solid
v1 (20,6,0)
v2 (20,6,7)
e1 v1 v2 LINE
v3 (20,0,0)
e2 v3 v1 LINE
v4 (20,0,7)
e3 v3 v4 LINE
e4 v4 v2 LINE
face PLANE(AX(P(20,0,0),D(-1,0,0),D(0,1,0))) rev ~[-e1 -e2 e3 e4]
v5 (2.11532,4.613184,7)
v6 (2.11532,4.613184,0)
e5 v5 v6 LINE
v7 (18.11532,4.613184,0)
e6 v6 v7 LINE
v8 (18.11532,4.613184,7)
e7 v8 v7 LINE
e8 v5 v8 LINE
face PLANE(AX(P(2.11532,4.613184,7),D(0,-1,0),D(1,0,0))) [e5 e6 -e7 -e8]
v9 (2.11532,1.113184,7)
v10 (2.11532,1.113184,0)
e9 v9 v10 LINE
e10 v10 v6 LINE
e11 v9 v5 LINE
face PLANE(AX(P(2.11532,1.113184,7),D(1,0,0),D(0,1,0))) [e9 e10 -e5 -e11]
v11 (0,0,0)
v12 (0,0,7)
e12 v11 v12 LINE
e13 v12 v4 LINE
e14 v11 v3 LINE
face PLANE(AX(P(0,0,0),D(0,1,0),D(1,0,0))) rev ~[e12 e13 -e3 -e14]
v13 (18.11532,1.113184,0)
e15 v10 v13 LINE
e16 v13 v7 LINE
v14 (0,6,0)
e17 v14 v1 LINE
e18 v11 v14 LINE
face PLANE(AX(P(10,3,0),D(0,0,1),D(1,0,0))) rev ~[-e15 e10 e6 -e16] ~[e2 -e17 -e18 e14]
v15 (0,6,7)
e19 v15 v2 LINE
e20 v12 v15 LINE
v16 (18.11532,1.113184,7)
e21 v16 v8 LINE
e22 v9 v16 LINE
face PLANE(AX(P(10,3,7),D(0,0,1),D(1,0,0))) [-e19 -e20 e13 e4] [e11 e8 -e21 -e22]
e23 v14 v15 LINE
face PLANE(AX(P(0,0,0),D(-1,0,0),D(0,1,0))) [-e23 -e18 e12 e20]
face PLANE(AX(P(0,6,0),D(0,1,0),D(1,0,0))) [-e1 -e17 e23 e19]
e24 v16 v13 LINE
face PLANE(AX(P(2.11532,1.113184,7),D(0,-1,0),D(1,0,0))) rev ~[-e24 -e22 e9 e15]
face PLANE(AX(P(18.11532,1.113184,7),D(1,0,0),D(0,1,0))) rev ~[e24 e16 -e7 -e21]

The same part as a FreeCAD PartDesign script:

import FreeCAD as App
import Part
import Sketcher
Q = App.Units.Quantity

doc = App.newDocument("Part")
params = doc.addObject("Spreadsheet::Sheet", "Params")
for row, (alias, value) in enumerate([
    ("sketch1_width", "20 mm"),
    ("sketch1_height", "6 mm"),
    ("pad1_length", "7 mm"),
    ("sketch2_width", "16 mm"),
    ("sketch2_height", "3.5 mm"),
    ("pocket1_length", "9 mm"),
], start=1):
    params.set(f"A{row}", alias)
    params.set(f"B{row}", "=" + value)
    params.setAlias(f"B{row}", alias)

body = doc.addObject("PartDesign::Body", "Body")

# Sketch on XY plane
sketch1 = body.newObject("Sketcher::SketchObject", "Sketch")
sketch1.AttachmentSupport = (doc.getObject("XY_Plane"), [""])
sketch1.MapMode = "FlatFace"
sketch1.addGeometry([
    Part.LineSegment(App.Vector(0, 6, 0), App.Vector(0, 0, 0)),
    Part.LineSegment(App.Vector(0, 0, 0), App.Vector(20, 0, 0)),
    Part.LineSegment(App.Vector(20, 0, 0), App.Vector(20, 6, 0)),
    Part.LineSegment(App.Vector(20, 6, 0), App.Vector(0, 6, 0)),
], False)
sketch1.addConstraint([
    Sketcher.Constraint("Coincident", 0, 2, 1, 1),
    Sketcher.Constraint("Coincident", 1, 2, 2, 1),
    Sketcher.Constraint("Coincident", 2, 2, 3, 1),
    Sketcher.Constraint("Coincident", 3, 2, 0, 1),
    Sketcher.Constraint("Vertical", 0),
    Sketcher.Constraint("Horizontal", 1),
    Sketcher.Constraint("Vertical", 2),
    Sketcher.Constraint("Horizontal", 3),
    Sketcher.Constraint("Coincident", 0, 2, -1, 1),
    Sketcher.Constraint("DistanceX", 1, 1, 1, 2, Q("20 mm")),
    Sketcher.Constraint("DistanceY", 0, 2, 0, 1, Q("6 mm")),
])
sketch1.setExpression("Constraints[9]", "Params.sketch1_width")
sketch1.setExpression("Constraints[10]", "Params.sketch1_height")
pad1 = body.newObject("PartDesign::Pad", "Pad")
pad1.Profile = sketch1
pad1.setExpression("Length", "Params.pad1_length")

# Sketch on XY plane
sketch2 = body.newObject("Sketcher::SketchObject", "Sketch001")
sketch2.AttachmentSupport = (doc.getObject("XY_Plane"), [""])
sketch2.MapMode = "FlatFace"
sketch2.AttachmentOffset = App.Placement(App.Vector(0, 0, 7), App.Rotation())
sketch2.addGeometry([
    Part.LineSegment(App.Vector(2.11532, 4.613184, 0), App.Vector(2.11532, 1.113184, 0)),
    Part.LineSegment(App.Vector(2.11532, 1.113184, 0), App.Vector(18.11532, 1.113184, 0)),
    Part.LineSegment(App.Vector(18.11532, 1.113184, 0), App.Vector(18.11532, 4.613184, 0)),
    Part.LineSegment(App.Vector(18.11532, 4.613184, 0), App.Vector(2.11532, 4.613184, 0)),
], False)
sketch2.addConstraint([
    Sketcher.Constraint("Coincident", 0, 2, 1, 1),
    Sketcher.Constraint("Coincident", 1, 2, 2, 1),
    Sketcher.Constraint("Coincident", 2, 2, 3, 1),
    Sketcher.Constraint("Coincident", 3, 2, 0, 1),
    Sketcher.Constraint("Vertical", 0),
    Sketcher.Constraint("Horizontal", 1),
    Sketcher.Constraint("Vertical", 2),
    Sketcher.Constraint("Horizontal", 3),
    Sketcher.Constraint("DistanceX", 1, 1, 1, 2, Q("16 mm")),
    Sketcher.Constraint("DistanceY", 0, 2, 0, 1, Q("3.5 mm")),
    Sketcher.Constraint("DistanceX", -1, 1, 0, 2, Q("2.11532 mm")),
    Sketcher.Constraint("DistanceY", -1, 1, 0, 2, Q("1.113184 mm")),
])
sketch2.setExpression("Constraints[8]", "Params.sketch2_width")
sketch2.setExpression("Constraints[9]", "Params.sketch2_height")
pocket1 = body.newObject("PartDesign::Pocket", "Pocket")
pocket1.Profile = sketch2
pocket1.setExpression("Length", "Params.pocket1_length")

doc.recompute()
